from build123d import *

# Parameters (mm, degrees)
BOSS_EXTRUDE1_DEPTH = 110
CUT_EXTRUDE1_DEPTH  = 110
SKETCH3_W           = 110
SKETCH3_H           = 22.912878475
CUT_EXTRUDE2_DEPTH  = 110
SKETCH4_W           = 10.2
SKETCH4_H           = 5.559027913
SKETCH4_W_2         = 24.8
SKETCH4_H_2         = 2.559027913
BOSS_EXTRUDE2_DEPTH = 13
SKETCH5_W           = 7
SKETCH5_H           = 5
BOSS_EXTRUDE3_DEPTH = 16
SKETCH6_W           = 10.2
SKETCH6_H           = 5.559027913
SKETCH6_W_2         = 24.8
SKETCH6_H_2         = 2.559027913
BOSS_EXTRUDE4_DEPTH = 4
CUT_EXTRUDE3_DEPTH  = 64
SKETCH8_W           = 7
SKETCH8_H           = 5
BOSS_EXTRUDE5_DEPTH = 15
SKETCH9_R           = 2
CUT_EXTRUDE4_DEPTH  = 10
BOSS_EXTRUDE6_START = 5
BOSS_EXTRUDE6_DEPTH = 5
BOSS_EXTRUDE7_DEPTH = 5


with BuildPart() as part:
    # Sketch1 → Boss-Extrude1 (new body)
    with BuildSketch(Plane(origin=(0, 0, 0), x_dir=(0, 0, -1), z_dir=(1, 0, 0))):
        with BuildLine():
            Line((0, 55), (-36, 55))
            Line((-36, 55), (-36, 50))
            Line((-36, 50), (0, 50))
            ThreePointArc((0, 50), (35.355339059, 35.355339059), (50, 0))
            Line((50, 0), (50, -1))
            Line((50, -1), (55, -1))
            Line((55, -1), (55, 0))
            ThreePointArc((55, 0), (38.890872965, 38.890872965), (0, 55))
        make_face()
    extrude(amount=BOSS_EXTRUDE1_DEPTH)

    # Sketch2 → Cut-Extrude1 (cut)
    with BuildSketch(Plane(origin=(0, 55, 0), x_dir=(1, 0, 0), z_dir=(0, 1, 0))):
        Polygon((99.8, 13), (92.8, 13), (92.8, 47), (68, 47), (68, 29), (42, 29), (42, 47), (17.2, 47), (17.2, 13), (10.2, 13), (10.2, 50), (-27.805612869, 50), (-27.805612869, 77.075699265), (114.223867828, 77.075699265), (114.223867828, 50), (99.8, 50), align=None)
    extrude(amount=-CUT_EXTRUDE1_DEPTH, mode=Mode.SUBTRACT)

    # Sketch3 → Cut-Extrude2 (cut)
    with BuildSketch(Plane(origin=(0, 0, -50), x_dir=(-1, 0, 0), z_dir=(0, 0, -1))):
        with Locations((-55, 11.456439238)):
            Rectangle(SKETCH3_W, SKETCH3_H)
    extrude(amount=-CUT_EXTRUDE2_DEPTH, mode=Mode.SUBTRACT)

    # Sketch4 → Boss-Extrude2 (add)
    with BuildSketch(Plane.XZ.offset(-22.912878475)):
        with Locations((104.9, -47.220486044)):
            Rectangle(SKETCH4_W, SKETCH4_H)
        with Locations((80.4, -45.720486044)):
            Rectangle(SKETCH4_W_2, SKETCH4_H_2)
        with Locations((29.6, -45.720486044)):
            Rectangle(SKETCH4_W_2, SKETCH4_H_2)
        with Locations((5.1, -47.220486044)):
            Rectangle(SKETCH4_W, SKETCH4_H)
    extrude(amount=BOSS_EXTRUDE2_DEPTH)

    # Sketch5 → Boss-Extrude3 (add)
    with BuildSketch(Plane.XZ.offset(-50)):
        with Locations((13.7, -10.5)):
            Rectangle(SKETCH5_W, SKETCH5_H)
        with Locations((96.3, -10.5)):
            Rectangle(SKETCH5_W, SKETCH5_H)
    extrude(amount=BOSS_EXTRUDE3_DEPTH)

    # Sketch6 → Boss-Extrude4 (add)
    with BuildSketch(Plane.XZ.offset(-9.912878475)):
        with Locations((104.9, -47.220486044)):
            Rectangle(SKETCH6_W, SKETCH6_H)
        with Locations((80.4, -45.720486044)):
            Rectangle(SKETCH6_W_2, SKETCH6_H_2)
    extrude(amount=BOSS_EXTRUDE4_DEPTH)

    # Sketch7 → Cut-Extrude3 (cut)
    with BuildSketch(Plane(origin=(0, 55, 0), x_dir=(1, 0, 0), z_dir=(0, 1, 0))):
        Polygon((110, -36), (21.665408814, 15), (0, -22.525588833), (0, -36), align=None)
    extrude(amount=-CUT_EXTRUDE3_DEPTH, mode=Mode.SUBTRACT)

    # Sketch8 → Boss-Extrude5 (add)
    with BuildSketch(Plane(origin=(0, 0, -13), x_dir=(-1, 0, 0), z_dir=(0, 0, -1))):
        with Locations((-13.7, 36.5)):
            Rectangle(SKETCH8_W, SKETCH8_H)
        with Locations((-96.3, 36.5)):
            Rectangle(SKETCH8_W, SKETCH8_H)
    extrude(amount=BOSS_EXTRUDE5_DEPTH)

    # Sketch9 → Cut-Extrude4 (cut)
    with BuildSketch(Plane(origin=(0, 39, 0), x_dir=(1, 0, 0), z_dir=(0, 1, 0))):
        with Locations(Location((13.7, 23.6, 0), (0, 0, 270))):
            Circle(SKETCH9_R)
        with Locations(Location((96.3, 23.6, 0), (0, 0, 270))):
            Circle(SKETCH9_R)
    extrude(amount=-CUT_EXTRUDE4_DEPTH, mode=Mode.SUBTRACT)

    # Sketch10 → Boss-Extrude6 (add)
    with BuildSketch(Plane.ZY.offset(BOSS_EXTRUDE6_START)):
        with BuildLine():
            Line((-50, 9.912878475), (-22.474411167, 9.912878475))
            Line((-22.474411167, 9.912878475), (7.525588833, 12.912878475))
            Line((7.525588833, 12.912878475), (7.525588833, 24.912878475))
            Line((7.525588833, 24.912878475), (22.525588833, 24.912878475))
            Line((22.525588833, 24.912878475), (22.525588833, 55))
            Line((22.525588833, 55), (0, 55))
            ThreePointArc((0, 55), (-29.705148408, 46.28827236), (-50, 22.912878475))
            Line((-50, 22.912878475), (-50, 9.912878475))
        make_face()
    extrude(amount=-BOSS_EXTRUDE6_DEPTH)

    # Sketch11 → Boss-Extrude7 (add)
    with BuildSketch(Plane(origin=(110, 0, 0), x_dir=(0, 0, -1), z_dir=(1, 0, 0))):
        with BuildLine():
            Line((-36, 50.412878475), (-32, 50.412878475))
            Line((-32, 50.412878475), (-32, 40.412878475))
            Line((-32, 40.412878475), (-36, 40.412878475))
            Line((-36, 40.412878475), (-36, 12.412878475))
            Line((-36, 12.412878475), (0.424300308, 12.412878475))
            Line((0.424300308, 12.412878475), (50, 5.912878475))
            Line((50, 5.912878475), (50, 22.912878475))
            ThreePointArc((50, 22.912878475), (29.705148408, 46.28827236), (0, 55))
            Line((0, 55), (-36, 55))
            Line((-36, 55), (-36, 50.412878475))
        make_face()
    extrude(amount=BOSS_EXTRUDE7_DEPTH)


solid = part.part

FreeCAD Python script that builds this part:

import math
import FreeCAD as App
import Part
import Sketcher
Q = App.Units.Quantity


def add_polygon(sketch, points):
    """Adds a closed chain of lines whose ends are joined by coincident constraints."""
    first, n = sketch.GeometryCount, len(points)
    for a, b in zip(points, points[1:] + points[:1]):
        sketch.addGeometry(Part.LineSegment(App.Vector(*a, 0), App.Vector(*b, 0)), False)
    for i in range(n):
        sketch.addConstraint(Sketcher.Constraint("Coincident", first + i, 2, first + (i + 1) % n, 1))

doc = App.newDocument("Part")
body = doc.addObject("PartDesign::Body", "Body")

sketch1 = body.newObject("Sketcher::SketchObject", "Sketch")
sketch1.AttachmentSupport = (doc.getObject("YZ_Plane"), [""])
sketch1.MapMode = "FlatFace"
sketch1.addGeometry([
    Part.LineSegment(App.Vector(55, 0, 0), App.Vector(55, 36, 0)),
    Part.LineSegment(App.Vector(55, 36, 0), App.Vector(50, 36, 0)),
    Part.LineSegment(App.Vector(50, 36, 0), App.Vector(50, 0, 0)),
    Part.ArcOfCircle(Part.Circle(App.Vector(0, 0, 0), App.Vector(0, 0, 1), 50), math.radians(-90), math.radians(0)),
    Part.LineSegment(App.Vector(0, -50, 0), App.Vector(-1, -50, 0)),
    Part.LineSegment(App.Vector(-1, -50, 0), App.Vector(-1, -55, 0)),
    Part.LineSegment(App.Vector(-1, -55, 0), App.Vector(0, -55, 0)),
    Part.ArcOfCircle(Part.Circle(App.Vector(0, 0, 0), App.Vector(0, 0, 1), 55), math.radians(-90), math.radians(0)),
], False)
sketch1.addConstraint([
    Sketcher.Constraint("Coincident", 0, 2, 1, 1),
    Sketcher.Constraint("Coincident", 1, 2, 2, 1),
    Sketcher.Constraint("Tangent", 2, 2, 3, 2),
    Sketcher.Constraint("Tangent", 3, 1, 4, 1),
    Sketcher.Constraint("Coincident", 4, 2, 5, 1),
    Sketcher.Constraint("Coincident", 5, 2, 6, 1),
    Sketcher.Constraint("Tangent", 6, 2, 7, 1),
    Sketcher.Constraint("Tangent", 7, 2, 0, 1),
    Sketcher.Constraint("Vertical", 0),
    Sketcher.Constraint("Horizontal", 1),
    Sketcher.Constraint("Vertical", 2),
    Sketcher.Constraint("Horizontal", 4),
    Sketcher.Constraint("Vertical", 5),
    Sketcher.Constraint("Horizontal", 6),
    Sketcher.Constraint("Coincident", 3, 3, -1, 1),
    Sketcher.Constraint("Coincident", 7, 3, -1, 1),
    Sketcher.Constraint("Radius", 3, Q("50 mm")),
    Sketcher.Constraint("Radius", 7, Q("55 mm")),
    Sketcher.Constraint("DistanceX", 4, 2, 4, 1, Q("1 mm")),
    Sketcher.Constraint("DistanceY", 0, 1, 0, 2, Q("36 mm")),
])
pad1 = body.newObject("PartDesign::Pad", "Pad")
pad1.Profile = sketch1
pad1.Length = 110

sketch2 = body.newObject("Sketcher::SketchObject", "Sketch001")
sketch2.AttachmentSupport = (doc.getObject("XZ_Plane"), [""])
sketch2.MapMode = "FlatFace"
sketch2.AttachmentOffset = App.Placement(App.Vector(0, 0, -55), App.Rotation())
add_polygon(sketch2, [(93, -13), (100, -13), (100, -50), (114, -50), (114, -77), (-28, -77), (-28, -50), (10, -50), (10, -13), (17, -13), (17, -47), (42, -47), (42, -29), (68, -29), (68, -47), (93, -47)])
sketch2.addConstraint([
    Sketcher.Constraint("Horizontal", 0),
    Sketcher.Constraint("Vertical", 1),
    Sketcher.Constraint("Horizontal", 2),
    Sketcher.Constraint("Vertical", 3),
    Sketcher.Constraint("Horizontal", 4),
    Sketcher.Constraint("Vertical", 5),
    Sketcher.Constraint("Horizontal", 6),
    Sketcher.Constraint("Vertical", 7),
    Sketcher.Constraint("Horizontal", 8),
    Sketcher.Constraint("Vertical", 9),
    Sketcher.Constraint("Horizontal", 10),
    Sketcher.Constraint("Vertical", 11),
    Sketcher.Constraint("Horizontal", 12),
    Sketcher.Constraint("Vertical", 13),
    Sketcher.Constraint("Horizontal", 14),
    Sketcher.Constraint("Vertical", 15),
    Sketcher.Constraint("Horizontal", 2, 2, 5, 2),
    Sketcher.Constraint("Horizontal", 0, 2, 7, 2),
    Sketcher.Constraint("Horizontal", 10, 2, 13, 2),
    Sketcher.Constraint("Equal", 0, 8),
    Sketcher.Constraint("Equal", 10, 14),
    Sketcher.Constraint("DistanceX", 0, 1, 0, 2, Q("7 mm")),
    Sketcher.Constraint("DistanceX", 12, 1, 12, 2, Q("26 mm")),
    Sketcher.Constraint("DistanceY", 1, 2, 1, 1, Q("37 mm")),
    Sketcher.Constraint("DistanceY", 9, 2, 9, 1, Q("34 mm")),
    Sketcher.Constraint("DistanceY", 11, 1, 11, 2, Q("18 mm")),
    Sketcher.Constraint("DistanceX", 10, 1, 10, 2, Q("24.8 mm")),
    Sketcher.Constraint("DistanceY", 0, 2, -1, 1, Q("13 mm")),
    Sketcher.Constraint("DistanceX", -1, 1, 10, 2, Q("42 mm")),
    Sketcher.Constraint("DistanceY", 3, 2, 3, 1, Q("27.075699 mm")),
    Sketcher.Constraint("DistanceX", 4, 2, 4, 1, Q("142.029481 mm")),
    Sketcher.Constraint("DistanceX", 2, 1, 2, 2, Q("14.423868 mm")),
])
pocket1 = body.newObject("PartDesign::Pocket", "Pocket")
pocket1.Profile = sketch2
pocket1.Length = 110
pocket1.Reversed = True

sketch3 = body.newObject("Sketcher::SketchObject", "Sketch002")
sketch3.AttachmentSupport = (doc.getObject("XY_Plane"), [""])
sketch3.MapMode = "FlatFace"
sketch3.AttachmentOffset = App.Placement(App.Vector(0, 0, -50), App.Rotation())
add_polygon(sketch3, [(110, 23), (110, 0), (0, 0), (0, 23)])
sketch3.addConstraint([
    Sketcher.Constraint("Vertical", 0),
    Sketcher.Constraint("Horizontal", 1),
    Sketcher.Constraint("Vertical", 2),
    Sketcher.Constraint("Horizontal", 3),
    Sketcher.Constraint("Coincident", 1, 2, -1, 1),
    Sketcher.Constraint("DistanceX", 1, 2, 1, 1, Q("110 mm")),
    Sketcher.Constraint("DistanceY", 0, 2, 0, 1, Q("22.912878 mm")),
])
pocket2 = body.newObject("PartDesign::Pocket", "Pocket001")
pocket2.Profile = sketch3
pocket2.Length = 110
pocket2.Reversed = True

sketch4 = body.newObject("Sketcher::SketchObject", "Sketch003")
sketch4.AttachmentSupport = (doc.getObject("XZ_Plane"), [""])
sketch4.MapMode = "FlatFace"
sketch4.AttachmentOffset = App.Placement(App.Vector(0, 0, -22.912878), App.Rotation())
add_polygon(sketch4, [(99.8, -44.4), (99.8, -50), (110, -50), (110, -44.4)])
add_polygon(sketch4, [(68, -44.4), (68, -47), (92.8, -47), (92.8, -44.4)])
add_polygon(sketch4, [(17.2, -44.4), (17.2, -47), (42, -47), (42, -44.4)])
add_polygon(sketch4, [(0, -44.4), (0, -50), (10.2, -50), (10.2, -44.4)])
sketch4.addConstraint([
    Sketcher.Constraint("Vertical", 0),
    Sketcher.Constraint("Horizontal", 1),
    Sketcher.Constraint("Vertical", 2),
    Sketcher.Constraint("Horizontal", 3),
    Sketcher.Constraint("Vertical", 4),
    Sketcher.Constraint("Horizontal", 5),
    Sketcher.Constraint("Vertical", 6),
    Sketcher.Constraint("Horizontal", 7),
    Sketcher.Constraint("Vertical", 8),
    Sketcher.Constraint("Horizontal", 9),
    Sketcher.Constraint("Vertical", 10),
    Sketcher.Constraint("Horizontal", 11),
    Sketcher.Constraint("Vertical", 12),
    Sketcher.Constraint("Horizontal", 13),
    Sketcher.Constraint("Vertical", 14),
    Sketcher.Constraint("Horizontal", 15),
    Sketcher.Constraint("PointOnObject", 12, 2, -2),
    Sketcher.Constraint("Horizontal", 3, 2, 6, 2),
    Sketcher.Constraint("Horizontal", 5, 2, 8, 2),
    Sketcher.Constraint("Horizontal", 7, 2, 10, 2),
    Sketcher.Constraint("Horizontal", 1, 2, 12, 2),
    Sketcher.Constraint("Horizontal", 11, 2, 14, 2),
    Sketcher.Constraint("Equal", 7, 9),
    Sketcher.Constraint("Equal", 3, 13),
    Sketcher.Constraint("DistanceX", 1, 1, 1, 2, Q("10.2 mm")),
    Sketcher.Constraint("DistanceX", 5, 1, 5, 2, Q("24.8 mm")),
    Sketcher.Constraint("DistanceY", 0, 2, -1, 1, Q("50 mm")),
    Sketcher.Constraint("DistanceX", -1, 1, 1, 2, Q("110 mm")),
    Sketcher.Constraint("DistanceX", -1, 1, 4, 2, Q("68 mm")),
    Sketcher.Constraint("DistanceY", 4, 2, -1, 1, Q("47 mm")),
    Sketcher.Constraint("DistanceX", -1, 1, 9, 2, Q("42 mm")),
    Sketcher.Constraint("DistanceY", 0, 2, 0, 1, Q("5.559028 mm")),
])
pad2 = body.newObject("PartDesign::Pad", "Pad001")
pad2.Profile = sketch4
pad2.Length = 13

sketch5 = body.newObject("Sketcher::SketchObject", "Sketch004")
sketch5.AttachmentSupport = (doc.getObject("XZ_Plane"), [""])
sketch5.MapMode = "FlatFace"
sketch5.AttachmentOffset = App.Placement(App.Vector(0, 0, -50), App.Rotation())
add_polygon(sketch5, [(10, -8), (10, -13), (17, -13), (17, -8)])
add_polygon(sketch5, [(93, -8), (93, -13), (100, -13), (100, -8)])
sketch5.addConstraint([
    Sketcher.Constraint("Vertical", 0),
    Sketcher.Constraint("Horizontal", 1),
    Sketcher.Constraint("Vertical", 2),
    Sketcher.Constraint("Horizontal", 3),
    Sketcher.Constraint("Vertical", 4),
    Sketcher.Constraint("Horizontal", 5),
    Sketcher.Constraint("Vertical", 6),
    Sketcher.Constraint("Horizontal", 7),
    Sketcher.Constraint("Horizontal", 1, 2, 4, 2),
    Sketcher.Constraint("Horizontal", 3, 2, 6, 2),
    Sketcher.Constraint("Equal", 3, 5),
    Sketcher.Constraint("DistanceX", 1, 1, 1, 2, Q("7 mm")),
    Sketcher.Constraint("DistanceY", 0, 2, 0, 1, Q("5 mm")),
    Sketcher.Constraint("DistanceY", 0, 2, -1, 1, Q("13 mm")),
    Sketcher.Constraint("DistanceX", -1, 1, 0, 2, Q("10.2 mm")),
    Sketcher.Constraint("DistanceX", -1, 1, 4, 2, Q("92.8 mm")),
])
pad3 = body.newObject("PartDesign::Pad", "Pad002")
pad3.Profile = sketch5
pad3.Length = 16

sketch6 = body.newObject("Sketcher::SketchObject", "Sketch005")
sketch6.AttachmentSupport = (doc.getObject("XZ_Plane"), [""])
sketch6.MapMode = "FlatFace"
sketch6.AttachmentOffset = App.Placement(App.Vector(0, 0, -9.912878), App.Rotation())
add_polygon(sketch6, [(99.8, -44.4), (99.8, -50), (110, -50), (110, -44.4)])
add_polygon(sketch6, [(68, -44.4), (68, -47), (92.8, -47), (92.8, -44.4)])
sketch6.addConstraint([
    Sketcher.Constraint("Vertical", 0),
    Sketcher.Constraint("Horizontal", 1),
    Sketcher.Constraint("Vertical", 2),
    Sketcher.Constraint("Horizontal", 3),
    Sketcher.Constraint("Vertical", 4),
    Sketcher.Constraint("Horizontal", 5),
    Sketcher.Constraint("Vertical", 6),
    Sketcher.Constraint("Horizontal", 7),
    Sketcher.Constraint("Horizontal", 3, 2, 6, 2),
    Sketcher.Constraint("DistanceX", 1, 1, 1, 2, Q("10.2 mm")),
    Sketcher.Constraint("DistanceX", 5, 1, 5, 2, Q("24.8 mm")),
    Sketcher.Constraint("DistanceY", 0, 2, -1, 1, Q("50 mm")),
    Sketcher.Constraint("DistanceX", -1, 1, 1, 2, Q("110 mm")),
    Sketcher.Constraint("DistanceX", -1, 1, 4, 2, Q("68 mm")),
    Sketcher.Constraint("DistanceY", 4, 2, -1, 1, Q("47 mm")),
    Sketcher.Constraint("DistanceY", 0, 2, 0, 1, Q("5.559028 mm")),
])
pad4 = body.newObject("PartDesign::Pad", "Pad003")
pad4.Profile = sketch6
pad4.Length = 4

sketch7 = body.newObject("Sketcher::SketchObject", "Sketch006")
sketch7.AttachmentSupport = (doc.getObject("XZ_Plane"), [""])
sketch7.MapMode = "FlatFace"
sketch7.AttachmentOffset = App.Placement(App.Vector(0, 0, -55), App.Rotation())
add_polygon(sketch7, [(110, 36), (22, -15), (0, 23), (0, 36)])
sketch7.addConstraint([
    Sketcher.Constraint("Vertical", 2),
    Sketcher.Constraint("Horizontal", 3),
    Sketcher.Constraint("PointOnObject", 1, 2, -2),
    Sketcher.Constraint("Perpendicular", 0, 1),
    Sketcher.Constraint("DistanceX", 3, 1, 3, 2, Q("110 mm")),
    Sketcher.Constraint("Angle", 0, Q("-150 deg")),
    Sketcher.Constraint("Distance", 0, Q("102 mm")),
    Sketcher.Constraint("DistanceY", 0, 2, -1, 1, Q("15 mm")),
])
pocket3 = body.newObject("PartDesign::Pocket", "Pocket002")
pocket3.Profile = sketch7
pocket3.Length = 64
pocket3.Reversed = True

sketch8 = body.newObject("Sketcher::SketchObject", "Sketch007")
sketch8.AttachmentSupport = (doc.getObject("XY_Plane"), [""])
sketch8.MapMode = "FlatFace"
sketch8.AttachmentOffset = App.Placement(App.Vector(0, 0, -13), App.Rotation())
add_polygon(sketch8, [(17, 39), (17, 34), (10, 34), (10, 39)])
add_polygon(sketch8, [(100, 39), (100, 34), (93, 34), (93, 39)])
sketch8.addConstraint([
    Sketcher.Constraint("Vertical", 0),
    Sketcher.Constraint("Horizontal", 1),
    Sketcher.Constraint("Vertical", 2),
    Sketcher.Constraint("Horizontal", 3),
    Sketcher.Constraint("Vertical", 4),
    Sketcher.Constraint("Horizontal", 5),
    Sketcher.Constraint("Vertical", 6),
    Sketcher.Constraint("Horizontal", 7),
    Sketcher.Constraint("Horizontal", 1, 2, 4, 2),
    Sketcher.Constraint("Horizontal", 3, 2, 6, 2),
    Sketcher.Constraint("Equal", 3, 5),
    Sketcher.Constraint("DistanceX", 1, 2, 1, 1, Q("7 mm")),
    Sketcher.Constraint("DistanceY", 0, 2, 0, 1, Q("5 mm")),
    Sketcher.Constraint("DistanceY", -1, 1, 0, 2, Q("34 mm")),
    Sketcher.Constraint("DistanceX", -1, 1, 0, 2, Q("17.2 mm")),
    Sketcher.Constraint("DistanceX", -1, 1, 4, 2, Q("99.8 mm")),
])
pad5 = body.newObject("PartDesign::Pad", "Pad004")
pad5.Profile = sketch8
pad5.Length = 15
pad5.Reversed = True

sketch9 = body.newObject("Sketcher::SketchObject", "Sketch008")
sketch9.AttachmentSupport = (doc.getObject("XZ_Plane"), [""])
sketch9.MapMode = "FlatFace"
sketch9.AttachmentOffset = App.Placement(App.Vector(0, 0, -39), App.Rotation())
sketch9.addGeometry([
    Part.Circle(App.Vector(13.7, -23.6, 0), App.Vector(0, 0, 1), 2),
    Part.Circle(App.Vector(96.3, -23.6, 0), App.Vector(0, 0, 1), 2),
], False)
sketch9.addConstraint([
    Sketcher.Constraint("Equal", 0, 1),
    Sketcher.Constraint("Horizontal", 0, 3, 1, 3),
    Sketcher.Constraint("Diameter", 0, Q("4 mm")),
    Sketcher.Constraint("DistanceX", -1, 1, 0, 3, Q("13.7 mm")),
    Sketcher.Constraint("DistanceY", 0, 3, -1, 1, Q("23.6 mm")),
    Sketcher.Constraint("DistanceX", -1, 1, 1, 3, Q("96.3 mm")),
])
pocket4 = body.newObject("PartDesign::Pocket", "Pocket003")
pocket4.Profile = sketch9
pocket4.Length = 10
pocket4.Reversed = True

sketch10 = body.newObject("Sketcher::SketchObject", "Sketch009")
sketch10.AttachmentSupport = (doc.getObject("YZ_Plane"), [""])
sketch10.MapMode = "FlatFace"
sketch10.AttachmentOffset = App.Placement(App.Vector(0, 0, -5), App.Rotation())
sketch10.addGeometry([
    Part.LineSegment(App.Vector(10, -50, 0), App.Vector(10, -22, 0)),
    Part.LineSegment(App.Vector(10, -22, 0), App.Vector(13, 8, 0)),
    Part.LineSegment(App.Vector(13, 8, 0), App.Vector(25, 8, 0)),
    Part.LineSegment(App.Vector(25, 8, 0), App.Vector(25, 23, 0)),
    Part.LineSegment(App.Vector(25, 23, 0), App.Vector(55, 23, 0)),
    Part.LineSegment(App.Vector(55, 23, 0), App.Vector(55, 0, 0)),
    Part.ArcOfCircle(Part.Circle(App.Vector(0, 0, 0), App.Vector(0, 0, 1), 55), math.radians(-65), math.radians(0)),
    Part.LineSegment(App.Vector(23, -50, 0), App.Vector(10, -50, 0)),
], False)
sketch10.addConstraint([
    Sketcher.Constraint("Coincident", 0, 2, 1, 1),
    Sketcher.Constraint("Coincident", 1, 2, 2, 1),
    Sketcher.Constraint("Coincident", 2, 2, 3, 1),
    Sketcher.Constraint("Coincident", 3, 2, 4, 1),
    Sketcher.Constraint("Coincident", 4, 2, 5, 1),
    Sketcher.Constraint("Tangent", 5, 2, 6, 2),
    Sketcher.Constraint("Coincident", 6, 1, 7, 1),
    Sketcher.Constraint("Coincident", 7, 2, 0, 1),
    Sketcher.Constraint("Vertical", 0),
    Sketcher.Constraint("Horizontal", 2),
    Sketcher.Constraint("Vertical", 3),
    Sketcher.Constraint("Horizontal", 4),
    Sketcher.Constraint("Vertical", 5),
    Sketcher.Constraint("Horizontal", 7),
    Sketcher.Constraint("Coincident", 6, 3, -1, 1),
    Sketcher.Constraint("Radius", 6, Q("55 mm")),
    Sketcher.Constraint("DistanceX", 2, 1, 2, 2, Q("12 mm")),
    Sketcher.Constraint("DistanceX", 7, 2, 7, 1, Q("13 mm")),
    Sketcher.Constraint("DistanceY", 3, 1, 3, 2, Q("15 mm")),
    Sketcher.Constraint("DistanceY", 6, 1, -1, 1, Q("50 mm")),
    Sketcher.Constraint("DistanceX", 0, 2, 1, 2, Q("3 mm")),
    Sketcher.Constraint("DistanceY", 0, 2, 1, 2, Q("30 mm")),
    Sketcher.Constraint("DistanceY", 0, 1, 0, 2, Q("27.525589 mm")),
])
pad6 = body.newObject("PartDesign::Pad", "Pad005")
pad6.Profile = sketch10
pad6.Length = 5

sketch11 = body.newObject("Sketcher::SketchObject", "Sketch010")
sketch11.AttachmentSupport = (doc.getObject("YZ_Plane"), [""])
sketch11.MapMode = "FlatFace"
sketch11.AttachmentOffset = App.Placement(App.Vector(0, 0, 110), App.Rotation())
sketch11.addGeometry([
    Part.LineSegment(App.Vector(50.4, 36, 0), App.Vector(50.4, 32, 0)),
    Part.LineSegment(App.Vector(50.4, 32, 0), App.Vector(40.4, 32, 0)),
    Part.LineSegment(App.Vector(40.4, 32, 0), App.Vector(40.4, 36, 0)),
    Part.LineSegment(App.Vector(40.4, 36, 0), App.Vector(12.4, 36, 0)),
    Part.LineSegment(App.Vector(12.4, 36, 0), App.Vector(12.4, -0.4, 0)),
    Part.LineSegment(App.Vector(12.4, -0.4, 0), App.Vector(5.9, -50, 0)),
    Part.LineSegment(App.Vector(5.9, -50, 0), App.Vector(22.9, -50, 0)),
    Part.ArcOfCircle(Part.Circle(App.Vector(0, 0, 0), App.Vector(0, 0, 1), 55), math.radians(-65), math.radians(0)),
    Part.LineSegment(App.Vector(55, 0, 0), App.Vector(55, 36, 0)),
    Part.LineSegment(App.Vector(55, 36, 0), App.Vector(50.4, 36, 0)),
], False)
sketch11.addConstraint([
    Sketcher.Constraint("Coincident", 0, 2, 1, 1),
    Sketcher.Constraint("Coincident", 1, 2, 2, 1),
    Sketcher.Constraint("Coincident", 2, 2, 3, 1),
    Sketcher.Constraint("Coincident", 3, 2, 4, 1),
    Sketcher.Constraint("Coincident", 4, 2, 5, 1),
    Sketcher.Constraint("Coincident", 5, 2, 6, 1),
    Sketcher.Constraint("Coincident", 6, 2, 7, 1),
    Sketcher.Constraint("Tangent", 7, 2, 8, 1),
    Sketcher.Constraint("Coincident", 8, 2, 9, 1),
    Sketcher.Constraint("Coincident", 9, 2, 0, 1),
    Sketcher.Constraint("Vertical", 0),
    Sketcher.Constraint("Horizontal", 1),
    Sketcher.Constraint("Vertical", 2),
    Sketcher.Constraint("Horizontal", 3),
    Sketcher.Constraint("Vertical", 4),
    Sketcher.Constraint("Horizontal", 6),
    Sketcher.Constraint("Vertical", 8),
    Sketcher.Constraint("Horizontal", 9),
    Sketcher.Constraint("Coincident", 7, 3, -1, 1),
    Sketcher.Constraint("Horizontal", 3, 2, 8, 2),
    Sketcher.Constraint("Radius", 7, Q("55 mm")),
    Sketcher.Constraint("DistanceX", 1, 2, 1, 1, Q("10 mm")),
    Sketcher.Constraint("DistanceX", 3, 2, 3, 1, Q("28 mm")),
    Sketcher.Constraint("DistanceX", 6, 1, 6, 2, Q("17 mm")),
    Sketcher.Constraint("DistanceY", 0, 2, 0, 1, Q("4 mm")),
    Sketcher.Constraint("DistanceY", 8, 1, 8, 2, Q("36 mm")),
    Sketcher.Constraint("Distance", 5, Q("50 mm")),
    Sketcher.Constraint("DistanceY", 5, 2, -1, 1, Q("50 mm")),
    Sketcher.Constraint("DistanceX", 5, 2, 4, 2, Q("6.5 mm")),
])
pad7 = body.newObject("PartDesign::Pad", "Pad006")
pad7.Profile = sketch11
pad7.Length = 5

doc.recompute()
